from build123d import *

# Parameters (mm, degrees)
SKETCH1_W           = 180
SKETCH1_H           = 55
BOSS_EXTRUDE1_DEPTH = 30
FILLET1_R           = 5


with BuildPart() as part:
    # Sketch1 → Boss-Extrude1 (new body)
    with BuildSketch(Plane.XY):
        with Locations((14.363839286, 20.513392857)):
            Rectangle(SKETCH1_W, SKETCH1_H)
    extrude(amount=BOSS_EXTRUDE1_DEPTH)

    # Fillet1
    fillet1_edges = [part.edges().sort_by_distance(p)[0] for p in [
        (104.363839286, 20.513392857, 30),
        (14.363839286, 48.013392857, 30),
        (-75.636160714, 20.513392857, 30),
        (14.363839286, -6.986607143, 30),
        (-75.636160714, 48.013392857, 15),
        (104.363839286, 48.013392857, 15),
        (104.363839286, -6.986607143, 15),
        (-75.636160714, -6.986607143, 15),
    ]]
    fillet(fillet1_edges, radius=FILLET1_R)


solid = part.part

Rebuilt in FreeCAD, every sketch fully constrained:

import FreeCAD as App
import Part
import Sketcher
from FreeCAD import Vector
Q = App.Units.Quantity


def edges_at(feature, points):
    """Names of the edges that pass closest to the given points."""
    edges = feature.Shape.Edges
    near = lambda p: min(range(len(edges)), key=lambda i: edges[i].distToShape(Part.Vertex(*p))[0])
    return sorted({f"Edge{near(p) + 1}" for p in points})

doc = App.newDocument("Part")
body = doc.addObject("PartDesign::Body", "Body")

sketch1 = body.newObject("Sketcher::SketchObject", "Sketch")
sketch1.AttachmentSupport = (doc.getObject("XY_Plane"), [""])
sketch1.MapMode = "FlatFace"
sketch1.addGeometry(Part.LineSegment(Vector(-76, 48, 0), Vector(-76, -7, 0)), False)
sketch1.addGeometry(Part.LineSegment(Vector(-76, -7, 0), Vector(104, -7, 0)), False)
sketch1.addGeometry(Part.LineSegment(Vector(104, -7, 0), Vector(104, 48, 0)), False)
sketch1.addGeometry(Part.LineSegment(Vector(104, 48, 0), Vector(-76, 48, 0)), False)
sketch1.addConstraint(Sketcher.Constraint("Coincident", 0, 2, 1, 1))
sketch1.addConstraint(Sketcher.Constraint("Coincident", 1, 2, 2, 1))
sketch1.addConstraint(Sketcher.Constraint("Coincident", 2, 2, 3, 1))
sketch1.addConstraint(Sketcher.Constraint("Coincident", 3, 2, 0, 1))
sketch1.addConstraint(Sketcher.Constraint("Vertical", 0))
sketch1.addConstraint(Sketcher.Constraint("Horizontal", 1))
sketch1.addConstraint(Sketcher.Constraint("Vertical", 2))
sketch1.addConstraint(Sketcher.Constraint("Horizontal", 3))
sketch1.addConstraint(Sketcher.Constraint("DistanceX", 1, 1, 1, 2, Q("180 mm")))
sketch1.addConstraint(Sketcher.Constraint("DistanceY", 0, 2, 0, 1, Q("55 mm")))
sketch1.addConstraint(Sketcher.Constraint("DistanceX", 0, 2, -1, 1, Q("75.636161 mm")))
sketch1.addConstraint(Sketcher.Constraint("DistanceY", 0, 2, -1, 1, Q("6.986607 mm")))
pad1 = body.newObject("PartDesign::Pad", "Pad")
pad1.Profile = sketch1
pad1.Length = 30
doc.recompute()

fillet = body.newObject("PartDesign::Fillet", "Fillet")
fillet.Base = (pad1, edges_at(pad1, [
    (104.364, 20.513, 30),
    (14.364, 48.013, 30),
    (-75.636, 20.513, 30),
    (14.364, -6.987, 30),
    (-75.636, 48.013, 15),
    (104.364, 48.013, 15),
    (104.364, -6.987, 15),
    (-75.636, -6.987, 15),
]))
fillet.Radius = 5

doc.recompute()
